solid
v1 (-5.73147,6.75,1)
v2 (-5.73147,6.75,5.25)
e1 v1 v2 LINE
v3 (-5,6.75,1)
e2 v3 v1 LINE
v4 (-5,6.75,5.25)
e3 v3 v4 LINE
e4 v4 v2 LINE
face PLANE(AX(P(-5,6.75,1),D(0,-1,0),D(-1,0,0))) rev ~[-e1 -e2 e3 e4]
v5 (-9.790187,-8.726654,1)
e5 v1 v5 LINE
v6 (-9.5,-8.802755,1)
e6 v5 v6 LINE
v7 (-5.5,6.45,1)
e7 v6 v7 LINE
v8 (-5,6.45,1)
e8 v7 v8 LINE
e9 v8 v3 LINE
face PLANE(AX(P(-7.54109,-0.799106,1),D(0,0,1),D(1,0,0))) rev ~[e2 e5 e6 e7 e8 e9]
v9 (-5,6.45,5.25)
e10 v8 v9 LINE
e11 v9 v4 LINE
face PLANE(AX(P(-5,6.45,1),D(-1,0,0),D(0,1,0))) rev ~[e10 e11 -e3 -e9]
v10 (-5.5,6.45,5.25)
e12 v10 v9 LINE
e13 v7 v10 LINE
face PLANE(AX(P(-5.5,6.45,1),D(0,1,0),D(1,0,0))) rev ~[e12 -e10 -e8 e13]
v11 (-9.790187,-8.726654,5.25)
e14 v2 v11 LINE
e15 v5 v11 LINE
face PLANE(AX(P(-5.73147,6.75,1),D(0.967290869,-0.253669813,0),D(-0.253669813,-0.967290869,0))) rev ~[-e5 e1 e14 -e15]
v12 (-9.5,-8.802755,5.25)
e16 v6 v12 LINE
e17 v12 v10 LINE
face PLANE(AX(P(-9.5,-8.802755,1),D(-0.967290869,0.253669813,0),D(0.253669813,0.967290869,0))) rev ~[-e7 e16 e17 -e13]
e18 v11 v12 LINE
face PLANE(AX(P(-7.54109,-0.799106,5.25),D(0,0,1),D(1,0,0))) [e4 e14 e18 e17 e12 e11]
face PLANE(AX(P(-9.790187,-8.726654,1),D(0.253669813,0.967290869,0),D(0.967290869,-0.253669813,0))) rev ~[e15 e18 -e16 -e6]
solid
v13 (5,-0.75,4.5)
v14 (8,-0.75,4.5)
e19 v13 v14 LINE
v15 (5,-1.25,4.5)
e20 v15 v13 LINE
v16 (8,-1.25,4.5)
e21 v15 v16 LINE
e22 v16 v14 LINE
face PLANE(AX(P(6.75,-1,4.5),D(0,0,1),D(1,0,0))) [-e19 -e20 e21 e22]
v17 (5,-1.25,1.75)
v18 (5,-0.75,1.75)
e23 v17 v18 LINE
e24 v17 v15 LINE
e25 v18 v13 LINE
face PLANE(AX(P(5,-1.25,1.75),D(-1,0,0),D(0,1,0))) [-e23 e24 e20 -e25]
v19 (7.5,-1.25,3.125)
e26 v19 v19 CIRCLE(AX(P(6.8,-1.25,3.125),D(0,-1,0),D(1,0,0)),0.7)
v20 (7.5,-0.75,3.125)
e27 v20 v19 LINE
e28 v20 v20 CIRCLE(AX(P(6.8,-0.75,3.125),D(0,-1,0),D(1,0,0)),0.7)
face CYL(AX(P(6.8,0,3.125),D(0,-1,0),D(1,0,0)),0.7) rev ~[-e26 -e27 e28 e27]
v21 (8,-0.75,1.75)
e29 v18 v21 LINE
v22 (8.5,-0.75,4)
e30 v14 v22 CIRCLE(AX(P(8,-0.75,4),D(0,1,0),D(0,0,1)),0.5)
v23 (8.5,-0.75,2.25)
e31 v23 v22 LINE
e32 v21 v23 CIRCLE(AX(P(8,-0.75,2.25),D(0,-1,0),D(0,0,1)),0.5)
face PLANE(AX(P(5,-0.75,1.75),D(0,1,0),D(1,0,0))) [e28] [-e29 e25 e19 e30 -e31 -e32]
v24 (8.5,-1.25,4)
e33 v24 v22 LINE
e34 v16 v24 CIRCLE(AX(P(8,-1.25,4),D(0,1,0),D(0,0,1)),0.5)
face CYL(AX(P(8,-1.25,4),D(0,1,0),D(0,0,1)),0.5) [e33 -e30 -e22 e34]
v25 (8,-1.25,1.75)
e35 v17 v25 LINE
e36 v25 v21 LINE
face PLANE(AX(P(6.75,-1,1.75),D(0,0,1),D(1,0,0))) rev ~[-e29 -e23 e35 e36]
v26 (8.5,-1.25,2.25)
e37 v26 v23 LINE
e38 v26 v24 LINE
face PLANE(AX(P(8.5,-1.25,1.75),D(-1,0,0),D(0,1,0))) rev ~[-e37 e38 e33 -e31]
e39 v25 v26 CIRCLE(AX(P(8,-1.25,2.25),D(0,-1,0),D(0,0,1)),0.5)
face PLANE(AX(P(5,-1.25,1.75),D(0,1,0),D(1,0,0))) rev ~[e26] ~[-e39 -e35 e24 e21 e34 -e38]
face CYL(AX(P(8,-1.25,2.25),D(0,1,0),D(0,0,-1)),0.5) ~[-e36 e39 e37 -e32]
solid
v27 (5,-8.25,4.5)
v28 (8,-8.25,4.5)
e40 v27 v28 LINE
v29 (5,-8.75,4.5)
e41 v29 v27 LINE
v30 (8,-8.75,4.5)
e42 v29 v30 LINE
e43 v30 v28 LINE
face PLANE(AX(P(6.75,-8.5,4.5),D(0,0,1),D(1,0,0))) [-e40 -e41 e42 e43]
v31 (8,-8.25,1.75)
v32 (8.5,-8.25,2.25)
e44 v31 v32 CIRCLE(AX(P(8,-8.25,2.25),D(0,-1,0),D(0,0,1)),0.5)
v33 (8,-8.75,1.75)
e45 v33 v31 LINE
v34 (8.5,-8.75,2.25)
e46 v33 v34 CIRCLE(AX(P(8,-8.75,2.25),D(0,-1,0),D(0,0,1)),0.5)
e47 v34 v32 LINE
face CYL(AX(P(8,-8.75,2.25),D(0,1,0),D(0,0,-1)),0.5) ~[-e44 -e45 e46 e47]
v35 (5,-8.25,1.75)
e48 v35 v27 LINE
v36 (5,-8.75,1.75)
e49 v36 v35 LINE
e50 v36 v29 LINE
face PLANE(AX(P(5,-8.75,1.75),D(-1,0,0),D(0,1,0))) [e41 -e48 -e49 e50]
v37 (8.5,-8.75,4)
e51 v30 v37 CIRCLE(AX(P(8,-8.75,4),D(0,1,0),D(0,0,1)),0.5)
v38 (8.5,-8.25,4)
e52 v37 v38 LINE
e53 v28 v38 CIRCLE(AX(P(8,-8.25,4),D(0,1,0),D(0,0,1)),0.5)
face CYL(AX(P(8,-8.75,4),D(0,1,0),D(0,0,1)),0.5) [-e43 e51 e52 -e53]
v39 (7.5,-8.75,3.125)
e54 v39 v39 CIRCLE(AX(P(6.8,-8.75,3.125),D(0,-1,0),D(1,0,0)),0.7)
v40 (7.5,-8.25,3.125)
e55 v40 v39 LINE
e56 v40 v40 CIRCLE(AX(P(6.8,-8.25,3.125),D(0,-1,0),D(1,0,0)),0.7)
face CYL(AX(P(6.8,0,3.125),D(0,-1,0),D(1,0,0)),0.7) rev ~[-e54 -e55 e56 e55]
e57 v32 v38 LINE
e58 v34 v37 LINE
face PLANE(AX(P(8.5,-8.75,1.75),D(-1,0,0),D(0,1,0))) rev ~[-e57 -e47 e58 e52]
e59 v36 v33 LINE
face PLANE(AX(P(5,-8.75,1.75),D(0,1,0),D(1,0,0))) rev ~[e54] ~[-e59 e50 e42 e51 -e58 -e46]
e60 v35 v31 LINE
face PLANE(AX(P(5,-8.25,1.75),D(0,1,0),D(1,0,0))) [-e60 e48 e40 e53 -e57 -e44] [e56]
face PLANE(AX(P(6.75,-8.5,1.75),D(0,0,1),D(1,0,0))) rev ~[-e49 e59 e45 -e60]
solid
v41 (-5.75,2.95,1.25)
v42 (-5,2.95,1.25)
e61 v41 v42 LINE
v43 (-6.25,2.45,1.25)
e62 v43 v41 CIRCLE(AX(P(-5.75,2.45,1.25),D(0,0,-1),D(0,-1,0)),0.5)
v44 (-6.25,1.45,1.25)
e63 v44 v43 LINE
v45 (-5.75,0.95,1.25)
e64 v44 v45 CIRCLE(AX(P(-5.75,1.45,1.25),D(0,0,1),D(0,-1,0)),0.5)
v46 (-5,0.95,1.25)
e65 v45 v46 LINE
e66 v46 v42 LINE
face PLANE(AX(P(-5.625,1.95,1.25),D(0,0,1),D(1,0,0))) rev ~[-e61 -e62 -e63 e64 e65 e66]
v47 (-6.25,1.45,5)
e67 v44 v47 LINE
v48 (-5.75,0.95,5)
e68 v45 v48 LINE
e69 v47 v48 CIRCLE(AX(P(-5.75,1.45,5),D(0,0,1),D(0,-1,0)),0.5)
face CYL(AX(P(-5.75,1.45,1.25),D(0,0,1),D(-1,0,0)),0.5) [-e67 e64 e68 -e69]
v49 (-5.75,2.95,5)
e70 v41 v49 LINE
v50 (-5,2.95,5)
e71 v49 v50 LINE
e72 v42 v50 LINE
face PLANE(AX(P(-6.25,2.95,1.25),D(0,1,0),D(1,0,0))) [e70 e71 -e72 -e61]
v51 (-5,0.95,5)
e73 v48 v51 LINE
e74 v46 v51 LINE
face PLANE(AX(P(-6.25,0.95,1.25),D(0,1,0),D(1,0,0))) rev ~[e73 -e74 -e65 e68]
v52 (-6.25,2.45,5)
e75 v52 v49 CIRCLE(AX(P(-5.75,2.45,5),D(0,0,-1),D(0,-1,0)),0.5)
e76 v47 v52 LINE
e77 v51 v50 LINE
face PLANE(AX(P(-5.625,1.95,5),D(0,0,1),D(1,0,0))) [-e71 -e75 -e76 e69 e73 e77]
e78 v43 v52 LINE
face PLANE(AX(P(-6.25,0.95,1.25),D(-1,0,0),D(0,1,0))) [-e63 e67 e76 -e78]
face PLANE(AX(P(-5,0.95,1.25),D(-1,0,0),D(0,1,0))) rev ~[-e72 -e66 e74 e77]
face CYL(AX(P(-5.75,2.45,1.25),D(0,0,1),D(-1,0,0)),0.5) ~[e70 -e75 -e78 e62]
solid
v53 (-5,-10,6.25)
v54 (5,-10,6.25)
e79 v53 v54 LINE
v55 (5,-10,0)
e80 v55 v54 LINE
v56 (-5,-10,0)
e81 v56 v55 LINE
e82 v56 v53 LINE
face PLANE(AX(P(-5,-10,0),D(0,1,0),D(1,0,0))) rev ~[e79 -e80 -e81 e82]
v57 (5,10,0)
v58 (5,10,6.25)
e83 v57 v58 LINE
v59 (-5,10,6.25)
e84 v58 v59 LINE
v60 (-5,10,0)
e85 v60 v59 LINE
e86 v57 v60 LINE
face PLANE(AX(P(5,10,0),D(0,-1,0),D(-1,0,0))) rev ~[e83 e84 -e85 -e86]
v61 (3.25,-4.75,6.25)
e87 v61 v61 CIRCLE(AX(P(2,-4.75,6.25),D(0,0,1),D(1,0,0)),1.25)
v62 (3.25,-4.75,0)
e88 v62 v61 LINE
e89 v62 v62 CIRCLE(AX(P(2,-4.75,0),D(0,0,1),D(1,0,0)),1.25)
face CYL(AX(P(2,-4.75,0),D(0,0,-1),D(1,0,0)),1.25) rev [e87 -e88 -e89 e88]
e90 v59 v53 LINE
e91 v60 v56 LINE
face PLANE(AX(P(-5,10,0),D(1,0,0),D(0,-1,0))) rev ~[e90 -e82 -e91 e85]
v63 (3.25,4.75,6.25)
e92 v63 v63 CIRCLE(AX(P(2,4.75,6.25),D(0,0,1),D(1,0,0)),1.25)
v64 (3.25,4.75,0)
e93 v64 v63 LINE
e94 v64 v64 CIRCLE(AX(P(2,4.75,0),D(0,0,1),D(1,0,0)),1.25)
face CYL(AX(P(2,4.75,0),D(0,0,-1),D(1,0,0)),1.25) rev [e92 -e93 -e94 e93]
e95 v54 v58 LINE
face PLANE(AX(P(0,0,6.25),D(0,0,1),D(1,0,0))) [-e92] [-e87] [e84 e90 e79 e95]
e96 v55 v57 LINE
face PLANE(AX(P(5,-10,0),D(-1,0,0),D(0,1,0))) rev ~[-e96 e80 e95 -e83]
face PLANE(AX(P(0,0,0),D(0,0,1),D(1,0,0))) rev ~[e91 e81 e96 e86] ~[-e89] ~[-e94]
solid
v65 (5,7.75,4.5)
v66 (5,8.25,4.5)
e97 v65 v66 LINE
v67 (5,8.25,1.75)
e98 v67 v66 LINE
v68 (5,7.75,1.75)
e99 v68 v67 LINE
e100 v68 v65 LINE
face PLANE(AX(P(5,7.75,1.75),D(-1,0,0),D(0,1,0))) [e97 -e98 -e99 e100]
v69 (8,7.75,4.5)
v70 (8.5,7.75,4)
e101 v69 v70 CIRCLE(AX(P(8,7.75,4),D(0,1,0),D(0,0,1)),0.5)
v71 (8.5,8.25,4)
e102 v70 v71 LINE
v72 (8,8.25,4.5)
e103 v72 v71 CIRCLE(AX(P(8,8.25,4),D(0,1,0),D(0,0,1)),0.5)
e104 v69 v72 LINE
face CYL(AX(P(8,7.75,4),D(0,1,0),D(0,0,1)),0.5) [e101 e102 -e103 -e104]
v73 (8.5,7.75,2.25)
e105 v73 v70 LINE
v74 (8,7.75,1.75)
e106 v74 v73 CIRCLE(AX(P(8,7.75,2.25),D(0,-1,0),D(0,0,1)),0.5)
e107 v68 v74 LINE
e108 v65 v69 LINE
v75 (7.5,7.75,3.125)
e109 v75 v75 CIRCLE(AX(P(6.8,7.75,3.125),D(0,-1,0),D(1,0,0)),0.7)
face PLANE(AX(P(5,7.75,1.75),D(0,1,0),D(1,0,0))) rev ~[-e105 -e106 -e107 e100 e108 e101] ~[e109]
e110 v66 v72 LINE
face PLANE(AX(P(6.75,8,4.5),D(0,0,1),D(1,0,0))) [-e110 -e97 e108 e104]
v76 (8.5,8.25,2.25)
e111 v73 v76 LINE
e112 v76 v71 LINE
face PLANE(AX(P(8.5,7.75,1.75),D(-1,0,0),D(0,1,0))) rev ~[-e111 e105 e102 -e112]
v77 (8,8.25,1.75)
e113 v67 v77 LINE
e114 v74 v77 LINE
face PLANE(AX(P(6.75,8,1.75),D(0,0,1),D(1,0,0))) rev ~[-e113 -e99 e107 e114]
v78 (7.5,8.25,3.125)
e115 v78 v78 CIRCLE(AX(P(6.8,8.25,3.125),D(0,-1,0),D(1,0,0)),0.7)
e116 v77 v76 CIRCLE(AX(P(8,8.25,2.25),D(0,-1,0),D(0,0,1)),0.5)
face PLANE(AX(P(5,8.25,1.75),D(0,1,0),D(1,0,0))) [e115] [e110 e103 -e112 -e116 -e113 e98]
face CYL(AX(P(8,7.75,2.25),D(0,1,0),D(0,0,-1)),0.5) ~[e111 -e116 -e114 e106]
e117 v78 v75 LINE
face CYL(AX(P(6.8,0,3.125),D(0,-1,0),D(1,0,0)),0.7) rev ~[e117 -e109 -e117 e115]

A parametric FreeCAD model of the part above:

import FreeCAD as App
import Part
import Sketcher

V = App.Vector
Q = App.Units.Quantity


def edges_at(feature, points):
    """Names of the edges that pass closest to the given points."""
    edges = feature.Shape.Edges
    near = lambda p: min(range(len(edges)), key=lambda i: edges[i].distToShape(Part.Vertex(*p))[0])
    return sorted({f"Edge{near(p) + 1}" for p in points})

doc = App.newDocument("Part")
body = doc.addObject("PartDesign::Body", "Body")

# Sketch on XY plane
sketch1 = body.newObject("Sketcher::SketchObject", "Sketch")
sketch1.AttachmentSupport = (doc.getObject("XY_Plane"), [""])
sketch1.MapMode = "FlatFace"
sketch1.addGeometry([
    Part.LineSegment(V(5, 10, 0), V(-5, 10, 0)),  # 0
    Part.LineSegment(V(-5, 10, 0), V(-5, -10, 0)),  # 1
    Part.LineSegment(V(-5, -10, 0), V(5, -10, 0)),  # 2
    Part.LineSegment(V(5, -10, 0), V(5, 10, 0)),  # 3
    Part.Circle(V(2, -4.8, 0), V(0, 0, 1), 1.2),  # 4
    Part.Circle(V(2, 4.8, 0), V(0, 0, 1), 1.2),  # 5
], False)
sketch1.addConstraint([
    Sketcher.Constraint("Coincident", 0, 2, 1, 1),
    Sketcher.Constraint("Coincident", 1, 2, 2, 1),
    Sketcher.Constraint("Coincident", 2, 2, 3, 1),
    Sketcher.Constraint("Coincident", 3, 2, 0, 1),
    Sketcher.Constraint("Horizontal", 0),
    Sketcher.Constraint("Vertical", 1),
    Sketcher.Constraint("Horizontal", 2),
    Sketcher.Constraint("Vertical", 3),
    Sketcher.Constraint("Equal", 4, 5),
    Sketcher.Constraint("Symmetric", 0, 2, 2, 2, -1, 1),
    Sketcher.Constraint("Symmetric", 4, 3, 5, 3, -1),
    Sketcher.Constraint("Diameter", 4, Q("2.5 mm")),
    Sketcher.Constraint("DistanceX", 0, 2, 0, 1, Q("10 mm")),
    Sketcher.Constraint("DistanceY", 1, 2, 1, 1, Q("20 mm")),
    Sketcher.Constraint("DistanceX", -1, 1, 4, 3, Q("2 mm")),
    Sketcher.Constraint("DistanceY", 4, 3, 5, 3, Q("9.5 mm")),
])
pad1 = body.newObject("PartDesign::Pad", "Pad")
pad1.Profile = sketch1
pad1.Length = 6.25
body2 = doc.addObject("PartDesign::Body", "Body001")

# Sketch on XY plane
sketch2 = body2.newObject("Sketcher::SketchObject", "Sketch001")
sketch2.AttachmentSupport = (doc.getObject("XY_Plane001"), [""])
sketch2.MapMode = "FlatFace"
sketch2.AttachmentOffset = App.Placement(V(0, 0, 1.75), App.Rotation())
sketch2.addGeometry([
    Part.LineSegment(V(5, -8.2, 0), V(5, -8.8, 0)),
    Part.LineSegment(V(5, -8.8, 0), V(8.5, -8.8, 0)),
    Part.LineSegment(V(8.5, -8.8, 0), V(8.5, -8.2, 0)),
    Part.LineSegment(V(8.5, -8.2, 0), V(5, -8.2, 0)),
], False)
sketch2.addConstraint([
    Sketcher.Constraint("Coincident", 0, 2, 1, 1),
    Sketcher.Constraint("Coincident", 1, 2, 2, 1),
    Sketcher.Constraint("Coincident", 2, 2, 3, 1),
    Sketcher.Constraint("Coincident", 3, 2, 0, 1),
    Sketcher.Constraint("Vertical", 0),
    Sketcher.Constraint("Horizontal", 1),
    Sketcher.Constraint("Vertical", 2),
    Sketcher.Constraint("Horizontal", 3),
    Sketcher.Constraint("DistanceX", 1, 1, 1, 2, Q("3.5 mm")),
    Sketcher.Constraint("DistanceY", 0, 2, 0, 1, Q("0.5 mm")),
    Sketcher.Constraint("DistanceX", -1, 1, 0, 2, Q("5 mm")),
    Sketcher.Constraint("DistanceY", 0, 2, -1, 1, Q("8.75 mm")),
])
pad2 = body2.newObject("PartDesign::Pad", "Pad001")
pad2.Profile = sketch2
pad2.Length = 2.75
body3 = doc.addObject("PartDesign::Body", "Body002")

# Sketch on XY plane
sketch3 = body3.newObject("Sketcher::SketchObject", "Sketch002")
sketch3.AttachmentSupport = (doc.getObject("XY_Plane002"), [""])
sketch3.MapMode = "FlatFace"
sketch3.AttachmentOffset = App.Placement(V(0, 0, 1.75), App.Rotation())
sketch3.addGeometry([
    Part.LineSegment(V(5, -0.8, 0), V(5, -1.2, 0)),
    Part.LineSegment(V(5, -1.2, 0), V(8.5, -1.2, 0)),
    Part.LineSegment(V(8.5, -1.2, 0), V(8.5, -0.8, 0)),
    Part.LineSegment(V(8.5, -0.8, 0), V(5, -0.8, 0)),
], False)
sketch3.addConstraint([
    Sketcher.Constraint("Coincident", 0, 2, 1, 1),
    Sketcher.Constraint("Coincident", 1, 2, 2, 1),
    Sketcher.Constraint("Coincident", 2, 2, 3, 1),
    Sketcher.Constraint("Coincident", 3, 2, 0, 1),
    Sketcher.Constraint("Vertical", 0),
    Sketcher.Constraint("Horizontal", 1),
    Sketcher.Constraint("Vertical", 2),
    Sketcher.Constraint("Horizontal", 3),
    Sketcher.Constraint("DistanceX", 1, 1, 1, 2, Q("3.5 mm")),
    Sketcher.Constraint("DistanceY", 0, 2, 0, 1, Q("0.5 mm")),
    Sketcher.Constraint("DistanceX", -1, 1, 0, 2, Q("5 mm")),
    Sketcher.Constraint("DistanceY", 0, 2, -1, 1, Q("1.25 mm")),
])
pad3 = body3.newObject("PartDesign::Pad", "Pad002")
pad3.Profile = sketch3
pad3.Length = 2.75
body4 = doc.addObject("PartDesign::Body", "Body003")

# Sketch on XY plane
sketch4 = body4.newObject("Sketcher::SketchObject", "Sketch003")
sketch4.AttachmentSupport = (doc.getObject("XY_Plane003"), [""])
sketch4.MapMode = "FlatFace"
sketch4.AttachmentOffset = App.Placement(V(0, 0, 1.75), App.Rotation())
sketch4.addGeometry([
    Part.LineSegment(V(5, 8.2, 0), V(5, 7.8, 0)),
    Part.LineSegment(V(5, 7.8, 0), V(8.5, 7.8, 0)),
    Part.LineSegment(V(8.5, 7.8, 0), V(8.5, 8.2, 0)),
    Part.LineSegment(V(8.5, 8.2, 0), V(5, 8.2, 0)),
], False)
sketch4.addConstraint([
    Sketcher.Constraint("Coincident", 0, 2, 1, 1),
    Sketcher.Constraint("Coincident", 1, 2, 2, 1),
    Sketcher.Constraint("Coincident", 2, 2, 3, 1),
    Sketcher.Constraint("Coincident", 3, 2, 0, 1),
    Sketcher.Constraint("Vertical", 0),
    Sketcher.Constraint("Horizontal", 1),
    Sketcher.Constraint("Vertical", 2),
    Sketcher.Constraint("Horizontal", 3),
    Sketcher.Constraint("DistanceX", 1, 1, 1, 2, Q("3.5 mm")),
    Sketcher.Constraint("DistanceY", 0, 2, 0, 1, Q("0.5 mm")),
    Sketcher.Constraint("DistanceX", -1, 1, 0, 2, Q("5 mm")),
    Sketcher.Constraint("DistanceY", -1, 1, 0, 2, Q("7.75 mm")),
])
pad4 = body4.newObject("PartDesign::Pad", "Pad003")
pad4.Profile = sketch4
pad4.Length = 2.75
body5 = doc.addObject("PartDesign::Body", "Body004")

# Sketch on XY plane
sketch5 = body5.newObject("Sketcher::SketchObject", "Sketch004")
sketch5.AttachmentSupport = (doc.getObject("XY_Plane004"), [""])
sketch5.MapMode = "FlatFace"
sketch5.AttachmentOffset = App.Placement(V(0, 0, 1), App.Rotation())
sketch5.addGeometry([
    Part.LineSegment(V(-5, 6.45, 0), V(-5, 6.75, 0)),  # 0
    Part.LineSegment(V(-5, 6.75, 0), V(-5.73, 6.75, 0)),  # 1
    Part.LineSegment(V(-5.73, 6.75, 0), V(-9.79, -8.73, 0)),  # 2
    Part.LineSegment(V(-9.79, -8.73, 0), V(-9.5, -8.8, 0)),  # 3
    Part.LineSegment(V(-9.5, -8.8, 0), V(-5.5, 6.45, 0)),  # 4
    Part.LineSegment(V(-5.5, 6.45, 0), V(-5, 6.45, 0)),  # 5
], False)
sketch5.addConstraint([
    Sketcher.Constraint("Coincident", 0, 2, 1, 1),
    Sketcher.Constraint("Coincident", 1, 2, 2, 1),
    Sketcher.Constraint("Coincident", 2, 2, 3, 1),
    Sketcher.Constraint("Coincident", 3, 2, 4, 1),
    Sketcher.Constraint("Coincident", 4, 2, 5, 1),
    Sketcher.Constraint("Coincident", 5, 2, 0, 1),
    Sketcher.Constraint("Vertical", 0),
    Sketcher.Constraint("Horizontal", 1),
    Sketcher.Constraint("Horizontal", 5),
    Sketcher.Constraint("Perpendicular", 2, 3),
    Sketcher.Constraint("Perpendicular", 3, 4),
    Sketcher.Constraint("Distance", 2, Q("16 mm")),
    Sketcher.Constraint("DistanceX", 5, 1, 5, 2, Q("0.5 mm")),
    Sketcher.Constraint("DistanceY", 0, 1, 0, 2, Q("0.3 mm")),
    Sketcher.Constraint("DistanceX", 0, 2, -1, 1, Q("5 mm")),
    Sketcher.Constraint("DistanceX", 3, 2, 4, 2, Q("4 mm")),
    Sketcher.Constraint("Distance", 3, Q("0.3 mm")),
    Sketcher.Constraint("DistanceY", -1, 1, 0, 2, Q("6.75 mm")),
])
pad5 = body5.newObject("PartDesign::Pad", "Pad004")
pad5.Profile = sketch5
pad5.Length = 4.25
body6 = doc.addObject("PartDesign::Body", "Body005")

# Sketch on XY plane
sketch6 = body6.newObject("Sketcher::SketchObject", "Sketch005")
sketch6.AttachmentSupport = (doc.getObject("XY_Plane005"), [""])
sketch6.MapMode = "FlatFace"
sketch6.AttachmentOffset = App.Placement(V(0, 0, 1.25), App.Rotation())
sketch6.addGeometry([
    Part.LineSegment(V(-6.2, 3, 0), V(-6.2, 0.9, 0)),
    Part.LineSegment(V(-6.2, 0.9, 0), V(-5, 0.9, 0)),
    Part.LineSegment(V(-5, 0.9, 0), V(-5, 3, 0)),
    Part.LineSegment(V(-5, 3, 0), V(-6.2, 3, 0)),
], False)
sketch6.addConstraint([
    Sketcher.Constraint("Coincident", 0, 2, 1, 1),
    Sketcher.Constraint("Coincident", 1, 2, 2, 1),
    Sketcher.Constraint("Coincident", 2, 2, 3, 1),
    Sketcher.Constraint("Coincident", 3, 2, 0, 1),
    Sketcher.Constraint("Vertical", 0),
    Sketcher.Constraint("Horizontal", 1),
    Sketcher.Constraint("Vertical", 2),
    Sketcher.Constraint("Horizontal", 3),
    Sketcher.Constraint("DistanceY", 0, 2, 0, 1, Q("2 mm")),
    Sketcher.Constraint("DistanceX", 1, 2, -1, 1, Q("5 mm")),
    Sketcher.Constraint("DistanceX", 1, 1, 1, 2, Q("1.25 mm")),
    Sketcher.Constraint("DistanceY", -1, 1, 0, 2, Q("0.95 mm")),
])
pad6 = body6.newObject("PartDesign::Pad", "Pad005")
pad6.Profile = sketch6
pad6.Length = 3.75
doc.recompute()

fillet = body6.newObject("PartDesign::Fillet", "Fillet")
fillet.Base = (pad6, edges_at(pad6, [(-6.25, 0.95, 3.125), (-6.25, 2.95, 3.125)]))
fillet.Radius = 0.5
body7 = doc.addObject("PartDesign::Body", "Body006")

# Sketch on XZ plane
sketch7 = body7.newObject("Sketcher::SketchObject", "Sketch006")
sketch7.AttachmentSupport = (doc.getObject("XZ_Plane006"), [""])
sketch7.MapMode = "FlatFace"
sketch7.addGeometry(Part.Circle(V(6.8, 3.1, 0), V(0, 0, 1), 0.7), False)
sketch7.addConstraint([
    Sketcher.Constraint("Diameter", 0, Q("1.4 mm")),
    Sketcher.Constraint("DistanceX", -1, 1, 0, 3, Q("6.8 mm")),
    Sketcher.Constraint("DistanceY", -1, 1, 0, 3, Q("3.125 mm")),
])
pad7 = body7.newObject("PartDesign::Pad", "Pad006")
pad7.Profile = sketch7
pad7.Type = "TwoLengths"
pad7.Length = 10.001
pad7.Length2 = 10.001
doc.recompute()

body8 = doc.addObject("PartDesign::Body", "Body007")
body8.BaseFeature = body7
boolean = body2.newObject("PartDesign::Boolean", "Boolean")
boolean.Type = "Cut"
boolean.addObjects([body8])
doc.recompute()

fillet2 = body2.newObject("PartDesign::Fillet", "Fillet001")
fillet2.Base = (boolean, edges_at(boolean, [(8.5, -8.5, 4.5), (8.5, -8.5, 1.75)]))
fillet2.Radius = 0.5
doc.recompute()

body9 = doc.addObject("PartDesign::Body", "Body008")
body9.BaseFeature = body7
boolean2 = body3.newObject("PartDesign::Boolean", "Boolean001")
boolean2.Type = "Cut"
boolean2.addObjects([body9])
doc.recompute()

fillet3 = body3.newObject("PartDesign::Fillet", "Fillet002")
fillet3.Base = (boolean2, edges_at(boolean2, [(8.5, -1, 1.75), (8.5, -1, 4.5)]))
fillet3.Radius = 0.5
doc.recompute()

boolean3 = body4.newObject("PartDesign::Boolean", "Boolean002")
boolean3.Type = "Cut"
boolean3.addObjects([body7])
doc.recompute()

fillet4 = body4.newObject("PartDesign::Fillet", "Fillet003")
fillet4.Base = (boolean3, edges_at(boolean3, [(8.5, 8, 4.5), (8.5, 8, 1.75)]))
fillet4.Radius = 0.5

doc.recompute()
